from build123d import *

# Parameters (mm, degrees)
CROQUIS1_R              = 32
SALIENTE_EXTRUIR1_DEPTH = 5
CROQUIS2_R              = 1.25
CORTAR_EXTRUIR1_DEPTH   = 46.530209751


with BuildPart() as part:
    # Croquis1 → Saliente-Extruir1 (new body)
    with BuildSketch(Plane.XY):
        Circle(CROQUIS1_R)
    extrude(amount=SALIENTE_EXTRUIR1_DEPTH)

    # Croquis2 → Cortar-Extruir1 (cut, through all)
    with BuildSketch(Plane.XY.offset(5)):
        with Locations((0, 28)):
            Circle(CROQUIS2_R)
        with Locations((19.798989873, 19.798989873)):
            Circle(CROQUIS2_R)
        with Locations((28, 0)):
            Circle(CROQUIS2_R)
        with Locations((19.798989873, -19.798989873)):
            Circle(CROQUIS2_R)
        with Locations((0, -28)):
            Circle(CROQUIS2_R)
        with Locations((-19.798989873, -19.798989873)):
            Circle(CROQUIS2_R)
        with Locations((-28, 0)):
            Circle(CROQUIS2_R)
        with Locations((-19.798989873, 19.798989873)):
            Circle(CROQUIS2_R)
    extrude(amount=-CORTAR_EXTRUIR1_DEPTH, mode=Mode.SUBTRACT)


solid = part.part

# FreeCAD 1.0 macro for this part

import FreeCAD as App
import Part
import Sketcher
Q = App.Units.Quantity

doc = App.newDocument("Part")
params = doc.addObject("Spreadsheet::Sheet", "Params")
for row, (alias, value) in enumerate([
    ("sketch1_diameter", "64 mm"),
    ("pad1_length", "5 mm"),
    ("sketch2_diameter", "2.5 mm"),
], start=1):
    params.set(f"A{row}", alias)
    params.set(f"B{row}", "=" + value)
    params.setAlias(f"B{row}", alias)

body = doc.addObject("PartDesign::Body", "Body")

sketch1 = doc.addObject("Sketcher::SketchObject", "Sketch")
body.addObject(sketch1)
sketch1.AttachmentSupport = (doc.XY_Plane, [""])
sketch1.MapMode = "FlatFace"
sketch1.addGeometry(Part.Circle(App.Vector(0, 0, 0), App.Vector(0, 0, 1), 32), False)
sketch1.addConstraint([
    Sketcher.Constraint("Coincident", 0, 3, -1, 1),
    Sketcher.Constraint("Diameter", 0, Q("64 mm")),
])
sketch1.setExpression("Constraints[1]", "Params.sketch1_diameter")
pad1 = doc.addObject("PartDesign::Pad", "Pad")
body.addObject(pad1)
pad1.Profile = sketch1
pad1.setExpression("Length", "Params.pad1_length")

sketch2 = doc.addObject("Sketcher::SketchObject", "Sketch001")
body.addObject(sketch2)
sketch2.AttachmentSupport = (doc.XY_Plane, [""])
sketch2.MapMode = "FlatFace"
sketch2.AttachmentOffset = App.Placement(App.Vector(0, 0, 5), App.Rotation())
sketch2.addGeometry([
    Part.Circle(App.Vector(0, 28, 0), App.Vector(0, 0, 1), 1.2),
    Part.Circle(App.Vector(19.8, 19.8, 0), App.Vector(0, 0, 1), 1.2),
    Part.Circle(App.Vector(28, 0, 0), App.Vector(0, 0, 1), 1.2),
    Part.Circle(App.Vector(19.8, -19.8, 0), App.Vector(0, 0, 1), 1.2),
    Part.Circle(App.Vector(0, -28, 0), App.Vector(0, 0, 1), 1.2),
    Part.Circle(App.Vector(-19.8, -19.8, 0), App.Vector(0, 0, 1), 1.2),
    Part.Circle(App.Vector(-28, 0, 0), App.Vector(0, 0, 1), 1.2),
    Part.Circle(App.Vector(-19.8, 19.8, 0), App.Vector(0, 0, 1), 1.2),
], False)
sketch2.addConstraint([
    Sketcher.Constraint("Equal", 0, 1),
    Sketcher.Constraint("Equal", 1, 2),
    Sketcher.Constraint("Equal", 2, 3),
    Sketcher.Constraint("Equal", 3, 4),
    Sketcher.Constraint("Equal", 4, 5),
    Sketcher.Constraint("Equal", 5, 6),
    Sketcher.Constraint("Equal", 6, 7),
    Sketcher.Constraint("Symmetric", 0, 3, 4, 3, -1, 1),
    Sketcher.Constraint("Symmetric", 1, 3, 5, 3, -1, 1),
    Sketcher.Constraint("Symmetric", 2, 3, 6, 3, -1, 1),
    Sketcher.Constraint("Symmetric", 3, 3, 7, 3, -1, 1),
    Sketcher.Constraint("Symmetric", 3, 3, 5, 3, -2),
    Sketcher.Constraint("PointOnObject", 0, 3, -2),
    Sketcher.Constraint("PointOnObject", 2, 3, -1),
    Sketcher.Constraint("Diameter", 0, Q("2.5 mm")),
    Sketcher.Constraint("DistanceY", -1, 1, 0, 3, Q("28 mm")),
    Sketcher.Constraint("DistanceX", -1, 1, 2, 3, Q("28 mm")),
    Sketcher.Constraint("DistanceX", -1, 1, 1, 3, Q("19.79899 mm")),
    Sketcher.Constraint("DistanceY", -1, 1, 1, 3, Q("19.79899 mm")),
])
sketch2.setExpression("Constraints[14]", "Params.sketch2_diameter")
pocket1 = doc.addObject("PartDesign::Pocket", "Pocket")
body.addObject(pocket1)
pocket1.Profile = sketch2
pocket1.Type = "ThroughAll"

doc.recompute()
